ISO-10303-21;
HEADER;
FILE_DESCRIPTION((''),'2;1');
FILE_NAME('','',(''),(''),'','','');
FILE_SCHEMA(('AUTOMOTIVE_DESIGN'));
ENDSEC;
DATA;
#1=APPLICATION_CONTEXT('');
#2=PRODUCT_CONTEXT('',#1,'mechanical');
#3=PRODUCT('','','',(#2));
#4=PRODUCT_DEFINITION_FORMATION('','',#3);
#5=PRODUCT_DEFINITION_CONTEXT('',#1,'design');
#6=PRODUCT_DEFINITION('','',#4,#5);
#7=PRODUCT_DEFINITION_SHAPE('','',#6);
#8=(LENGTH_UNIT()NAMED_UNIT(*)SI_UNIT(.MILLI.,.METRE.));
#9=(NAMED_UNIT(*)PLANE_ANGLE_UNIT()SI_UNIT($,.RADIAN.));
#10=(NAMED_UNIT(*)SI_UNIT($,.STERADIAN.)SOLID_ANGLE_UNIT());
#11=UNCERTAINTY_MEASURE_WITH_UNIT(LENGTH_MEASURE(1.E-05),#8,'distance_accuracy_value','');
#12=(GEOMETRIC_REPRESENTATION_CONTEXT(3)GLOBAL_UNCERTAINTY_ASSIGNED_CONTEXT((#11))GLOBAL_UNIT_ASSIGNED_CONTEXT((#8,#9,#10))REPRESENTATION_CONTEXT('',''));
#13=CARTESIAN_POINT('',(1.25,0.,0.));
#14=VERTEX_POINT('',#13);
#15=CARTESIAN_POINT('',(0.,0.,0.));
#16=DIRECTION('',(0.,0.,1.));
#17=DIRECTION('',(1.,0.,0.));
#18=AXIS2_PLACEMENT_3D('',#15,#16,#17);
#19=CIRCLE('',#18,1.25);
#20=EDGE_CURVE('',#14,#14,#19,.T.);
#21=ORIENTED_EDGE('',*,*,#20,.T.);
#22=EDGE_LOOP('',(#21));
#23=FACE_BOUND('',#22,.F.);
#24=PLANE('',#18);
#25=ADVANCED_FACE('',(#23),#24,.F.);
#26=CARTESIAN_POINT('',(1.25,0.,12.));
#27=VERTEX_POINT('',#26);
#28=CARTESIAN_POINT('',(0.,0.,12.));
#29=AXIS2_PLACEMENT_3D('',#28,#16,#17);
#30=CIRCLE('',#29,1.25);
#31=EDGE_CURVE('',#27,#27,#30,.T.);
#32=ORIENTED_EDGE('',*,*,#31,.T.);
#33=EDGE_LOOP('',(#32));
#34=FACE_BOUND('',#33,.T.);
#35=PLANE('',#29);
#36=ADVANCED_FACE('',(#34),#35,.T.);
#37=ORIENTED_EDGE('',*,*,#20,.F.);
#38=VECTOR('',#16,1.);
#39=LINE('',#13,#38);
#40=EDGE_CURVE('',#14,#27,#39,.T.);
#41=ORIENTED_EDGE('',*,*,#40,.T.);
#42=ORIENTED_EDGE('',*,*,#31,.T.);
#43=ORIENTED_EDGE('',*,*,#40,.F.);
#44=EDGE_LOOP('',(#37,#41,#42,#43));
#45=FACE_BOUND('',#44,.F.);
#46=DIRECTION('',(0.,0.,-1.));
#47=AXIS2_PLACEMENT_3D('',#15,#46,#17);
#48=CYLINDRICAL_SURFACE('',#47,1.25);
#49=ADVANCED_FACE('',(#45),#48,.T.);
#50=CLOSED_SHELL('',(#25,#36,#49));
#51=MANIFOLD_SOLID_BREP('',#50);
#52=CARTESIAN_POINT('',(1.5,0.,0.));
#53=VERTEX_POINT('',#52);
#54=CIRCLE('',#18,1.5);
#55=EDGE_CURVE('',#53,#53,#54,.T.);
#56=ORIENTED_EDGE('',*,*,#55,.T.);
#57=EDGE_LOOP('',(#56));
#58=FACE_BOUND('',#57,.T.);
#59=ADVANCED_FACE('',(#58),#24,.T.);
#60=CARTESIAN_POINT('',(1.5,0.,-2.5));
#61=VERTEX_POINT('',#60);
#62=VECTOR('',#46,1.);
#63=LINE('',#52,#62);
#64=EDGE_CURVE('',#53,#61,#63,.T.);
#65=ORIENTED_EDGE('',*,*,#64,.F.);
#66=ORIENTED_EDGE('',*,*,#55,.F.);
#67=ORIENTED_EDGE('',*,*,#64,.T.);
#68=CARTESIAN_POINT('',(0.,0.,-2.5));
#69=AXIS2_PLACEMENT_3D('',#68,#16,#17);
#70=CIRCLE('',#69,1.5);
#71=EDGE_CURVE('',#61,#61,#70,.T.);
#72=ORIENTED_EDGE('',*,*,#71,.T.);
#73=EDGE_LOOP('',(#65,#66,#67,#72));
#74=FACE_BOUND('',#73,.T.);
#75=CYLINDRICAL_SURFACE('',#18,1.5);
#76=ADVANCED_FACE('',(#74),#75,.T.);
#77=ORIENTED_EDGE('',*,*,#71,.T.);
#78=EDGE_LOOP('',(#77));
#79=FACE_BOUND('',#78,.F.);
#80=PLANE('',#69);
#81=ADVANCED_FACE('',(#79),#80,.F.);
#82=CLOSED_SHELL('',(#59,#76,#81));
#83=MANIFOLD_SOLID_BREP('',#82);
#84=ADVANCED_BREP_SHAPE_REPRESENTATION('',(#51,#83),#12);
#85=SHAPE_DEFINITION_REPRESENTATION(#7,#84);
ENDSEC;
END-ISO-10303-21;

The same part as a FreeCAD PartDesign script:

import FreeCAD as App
import Part
import Sketcher

doc = App.newDocument("Part")
params = doc.addObject("Spreadsheet::Sheet", "Params")
for row, (alias, value) in enumerate([
    ("sketch1_diameter", "3 mm"),
    ("pad1_length", "2.5 mm"),
    ("sketch2_diameter", "2.5 mm"),
    ("pad2_length", "12 mm"),
], start=1):
    params.set(f"A{row}", alias)
    params.set(f"B{row}", "=" + value)
    params.setAlias(f"B{row}", alias)

body = doc.addObject("PartDesign::Body", "Body")

# Sketch on XY plane
sketch1 = body.newObject("Sketcher::SketchObject", "Sketch")
sketch1.AttachmentSupport = (doc.getObject("XY_Plane"), [""])
sketch1.MapMode = "FlatFace"
sketch1.addGeometry(Part.Circle(App.Vector(0, 0, 0), App.Vector(0, 0, 1), 1.5), False)
sketch1.addConstraint([
    Sketcher.Constraint("Coincident", 0, 3, -1, 1),
    Sketcher.Constraint("Diameter", 0, 3.0),
])
sketch1.setExpression("Constraints[1]", "Params.sketch1_diameter")
pad1 = body.newObject("PartDesign::Pad", "Pad")
pad1.Profile = sketch1
pad1.setExpression("Length", "Params.pad1_length")
pad1.Reversed = True
body2 = doc.addObject("PartDesign::Body", "Body001")

# Sketch on XY plane
sketch2 = body2.newObject("Sketcher::SketchObject", "Sketch001")
sketch2.AttachmentSupport = (doc.getObject("XY_Plane001"), [""])
sketch2.MapMode = "FlatFace"
sketch2.addGeometry(Part.Circle(App.Vector(0, 0, 0), App.Vector(0, 0, 1), 1.2), False)
sketch2.addConstraint([
    Sketcher.Constraint("Coincident", 0, 3, -1, 1),
    Sketcher.Constraint("Diameter", 0, 2.5),
])
sketch2.setExpression("Constraints[1]", "Params.sketch2_diameter")
pad2 = body2.newObject("PartDesign::Pad", "Pad001")
pad2.Profile = sketch2
pad2.setExpression("Length", "Params.pad2_length")

doc.recompute()
